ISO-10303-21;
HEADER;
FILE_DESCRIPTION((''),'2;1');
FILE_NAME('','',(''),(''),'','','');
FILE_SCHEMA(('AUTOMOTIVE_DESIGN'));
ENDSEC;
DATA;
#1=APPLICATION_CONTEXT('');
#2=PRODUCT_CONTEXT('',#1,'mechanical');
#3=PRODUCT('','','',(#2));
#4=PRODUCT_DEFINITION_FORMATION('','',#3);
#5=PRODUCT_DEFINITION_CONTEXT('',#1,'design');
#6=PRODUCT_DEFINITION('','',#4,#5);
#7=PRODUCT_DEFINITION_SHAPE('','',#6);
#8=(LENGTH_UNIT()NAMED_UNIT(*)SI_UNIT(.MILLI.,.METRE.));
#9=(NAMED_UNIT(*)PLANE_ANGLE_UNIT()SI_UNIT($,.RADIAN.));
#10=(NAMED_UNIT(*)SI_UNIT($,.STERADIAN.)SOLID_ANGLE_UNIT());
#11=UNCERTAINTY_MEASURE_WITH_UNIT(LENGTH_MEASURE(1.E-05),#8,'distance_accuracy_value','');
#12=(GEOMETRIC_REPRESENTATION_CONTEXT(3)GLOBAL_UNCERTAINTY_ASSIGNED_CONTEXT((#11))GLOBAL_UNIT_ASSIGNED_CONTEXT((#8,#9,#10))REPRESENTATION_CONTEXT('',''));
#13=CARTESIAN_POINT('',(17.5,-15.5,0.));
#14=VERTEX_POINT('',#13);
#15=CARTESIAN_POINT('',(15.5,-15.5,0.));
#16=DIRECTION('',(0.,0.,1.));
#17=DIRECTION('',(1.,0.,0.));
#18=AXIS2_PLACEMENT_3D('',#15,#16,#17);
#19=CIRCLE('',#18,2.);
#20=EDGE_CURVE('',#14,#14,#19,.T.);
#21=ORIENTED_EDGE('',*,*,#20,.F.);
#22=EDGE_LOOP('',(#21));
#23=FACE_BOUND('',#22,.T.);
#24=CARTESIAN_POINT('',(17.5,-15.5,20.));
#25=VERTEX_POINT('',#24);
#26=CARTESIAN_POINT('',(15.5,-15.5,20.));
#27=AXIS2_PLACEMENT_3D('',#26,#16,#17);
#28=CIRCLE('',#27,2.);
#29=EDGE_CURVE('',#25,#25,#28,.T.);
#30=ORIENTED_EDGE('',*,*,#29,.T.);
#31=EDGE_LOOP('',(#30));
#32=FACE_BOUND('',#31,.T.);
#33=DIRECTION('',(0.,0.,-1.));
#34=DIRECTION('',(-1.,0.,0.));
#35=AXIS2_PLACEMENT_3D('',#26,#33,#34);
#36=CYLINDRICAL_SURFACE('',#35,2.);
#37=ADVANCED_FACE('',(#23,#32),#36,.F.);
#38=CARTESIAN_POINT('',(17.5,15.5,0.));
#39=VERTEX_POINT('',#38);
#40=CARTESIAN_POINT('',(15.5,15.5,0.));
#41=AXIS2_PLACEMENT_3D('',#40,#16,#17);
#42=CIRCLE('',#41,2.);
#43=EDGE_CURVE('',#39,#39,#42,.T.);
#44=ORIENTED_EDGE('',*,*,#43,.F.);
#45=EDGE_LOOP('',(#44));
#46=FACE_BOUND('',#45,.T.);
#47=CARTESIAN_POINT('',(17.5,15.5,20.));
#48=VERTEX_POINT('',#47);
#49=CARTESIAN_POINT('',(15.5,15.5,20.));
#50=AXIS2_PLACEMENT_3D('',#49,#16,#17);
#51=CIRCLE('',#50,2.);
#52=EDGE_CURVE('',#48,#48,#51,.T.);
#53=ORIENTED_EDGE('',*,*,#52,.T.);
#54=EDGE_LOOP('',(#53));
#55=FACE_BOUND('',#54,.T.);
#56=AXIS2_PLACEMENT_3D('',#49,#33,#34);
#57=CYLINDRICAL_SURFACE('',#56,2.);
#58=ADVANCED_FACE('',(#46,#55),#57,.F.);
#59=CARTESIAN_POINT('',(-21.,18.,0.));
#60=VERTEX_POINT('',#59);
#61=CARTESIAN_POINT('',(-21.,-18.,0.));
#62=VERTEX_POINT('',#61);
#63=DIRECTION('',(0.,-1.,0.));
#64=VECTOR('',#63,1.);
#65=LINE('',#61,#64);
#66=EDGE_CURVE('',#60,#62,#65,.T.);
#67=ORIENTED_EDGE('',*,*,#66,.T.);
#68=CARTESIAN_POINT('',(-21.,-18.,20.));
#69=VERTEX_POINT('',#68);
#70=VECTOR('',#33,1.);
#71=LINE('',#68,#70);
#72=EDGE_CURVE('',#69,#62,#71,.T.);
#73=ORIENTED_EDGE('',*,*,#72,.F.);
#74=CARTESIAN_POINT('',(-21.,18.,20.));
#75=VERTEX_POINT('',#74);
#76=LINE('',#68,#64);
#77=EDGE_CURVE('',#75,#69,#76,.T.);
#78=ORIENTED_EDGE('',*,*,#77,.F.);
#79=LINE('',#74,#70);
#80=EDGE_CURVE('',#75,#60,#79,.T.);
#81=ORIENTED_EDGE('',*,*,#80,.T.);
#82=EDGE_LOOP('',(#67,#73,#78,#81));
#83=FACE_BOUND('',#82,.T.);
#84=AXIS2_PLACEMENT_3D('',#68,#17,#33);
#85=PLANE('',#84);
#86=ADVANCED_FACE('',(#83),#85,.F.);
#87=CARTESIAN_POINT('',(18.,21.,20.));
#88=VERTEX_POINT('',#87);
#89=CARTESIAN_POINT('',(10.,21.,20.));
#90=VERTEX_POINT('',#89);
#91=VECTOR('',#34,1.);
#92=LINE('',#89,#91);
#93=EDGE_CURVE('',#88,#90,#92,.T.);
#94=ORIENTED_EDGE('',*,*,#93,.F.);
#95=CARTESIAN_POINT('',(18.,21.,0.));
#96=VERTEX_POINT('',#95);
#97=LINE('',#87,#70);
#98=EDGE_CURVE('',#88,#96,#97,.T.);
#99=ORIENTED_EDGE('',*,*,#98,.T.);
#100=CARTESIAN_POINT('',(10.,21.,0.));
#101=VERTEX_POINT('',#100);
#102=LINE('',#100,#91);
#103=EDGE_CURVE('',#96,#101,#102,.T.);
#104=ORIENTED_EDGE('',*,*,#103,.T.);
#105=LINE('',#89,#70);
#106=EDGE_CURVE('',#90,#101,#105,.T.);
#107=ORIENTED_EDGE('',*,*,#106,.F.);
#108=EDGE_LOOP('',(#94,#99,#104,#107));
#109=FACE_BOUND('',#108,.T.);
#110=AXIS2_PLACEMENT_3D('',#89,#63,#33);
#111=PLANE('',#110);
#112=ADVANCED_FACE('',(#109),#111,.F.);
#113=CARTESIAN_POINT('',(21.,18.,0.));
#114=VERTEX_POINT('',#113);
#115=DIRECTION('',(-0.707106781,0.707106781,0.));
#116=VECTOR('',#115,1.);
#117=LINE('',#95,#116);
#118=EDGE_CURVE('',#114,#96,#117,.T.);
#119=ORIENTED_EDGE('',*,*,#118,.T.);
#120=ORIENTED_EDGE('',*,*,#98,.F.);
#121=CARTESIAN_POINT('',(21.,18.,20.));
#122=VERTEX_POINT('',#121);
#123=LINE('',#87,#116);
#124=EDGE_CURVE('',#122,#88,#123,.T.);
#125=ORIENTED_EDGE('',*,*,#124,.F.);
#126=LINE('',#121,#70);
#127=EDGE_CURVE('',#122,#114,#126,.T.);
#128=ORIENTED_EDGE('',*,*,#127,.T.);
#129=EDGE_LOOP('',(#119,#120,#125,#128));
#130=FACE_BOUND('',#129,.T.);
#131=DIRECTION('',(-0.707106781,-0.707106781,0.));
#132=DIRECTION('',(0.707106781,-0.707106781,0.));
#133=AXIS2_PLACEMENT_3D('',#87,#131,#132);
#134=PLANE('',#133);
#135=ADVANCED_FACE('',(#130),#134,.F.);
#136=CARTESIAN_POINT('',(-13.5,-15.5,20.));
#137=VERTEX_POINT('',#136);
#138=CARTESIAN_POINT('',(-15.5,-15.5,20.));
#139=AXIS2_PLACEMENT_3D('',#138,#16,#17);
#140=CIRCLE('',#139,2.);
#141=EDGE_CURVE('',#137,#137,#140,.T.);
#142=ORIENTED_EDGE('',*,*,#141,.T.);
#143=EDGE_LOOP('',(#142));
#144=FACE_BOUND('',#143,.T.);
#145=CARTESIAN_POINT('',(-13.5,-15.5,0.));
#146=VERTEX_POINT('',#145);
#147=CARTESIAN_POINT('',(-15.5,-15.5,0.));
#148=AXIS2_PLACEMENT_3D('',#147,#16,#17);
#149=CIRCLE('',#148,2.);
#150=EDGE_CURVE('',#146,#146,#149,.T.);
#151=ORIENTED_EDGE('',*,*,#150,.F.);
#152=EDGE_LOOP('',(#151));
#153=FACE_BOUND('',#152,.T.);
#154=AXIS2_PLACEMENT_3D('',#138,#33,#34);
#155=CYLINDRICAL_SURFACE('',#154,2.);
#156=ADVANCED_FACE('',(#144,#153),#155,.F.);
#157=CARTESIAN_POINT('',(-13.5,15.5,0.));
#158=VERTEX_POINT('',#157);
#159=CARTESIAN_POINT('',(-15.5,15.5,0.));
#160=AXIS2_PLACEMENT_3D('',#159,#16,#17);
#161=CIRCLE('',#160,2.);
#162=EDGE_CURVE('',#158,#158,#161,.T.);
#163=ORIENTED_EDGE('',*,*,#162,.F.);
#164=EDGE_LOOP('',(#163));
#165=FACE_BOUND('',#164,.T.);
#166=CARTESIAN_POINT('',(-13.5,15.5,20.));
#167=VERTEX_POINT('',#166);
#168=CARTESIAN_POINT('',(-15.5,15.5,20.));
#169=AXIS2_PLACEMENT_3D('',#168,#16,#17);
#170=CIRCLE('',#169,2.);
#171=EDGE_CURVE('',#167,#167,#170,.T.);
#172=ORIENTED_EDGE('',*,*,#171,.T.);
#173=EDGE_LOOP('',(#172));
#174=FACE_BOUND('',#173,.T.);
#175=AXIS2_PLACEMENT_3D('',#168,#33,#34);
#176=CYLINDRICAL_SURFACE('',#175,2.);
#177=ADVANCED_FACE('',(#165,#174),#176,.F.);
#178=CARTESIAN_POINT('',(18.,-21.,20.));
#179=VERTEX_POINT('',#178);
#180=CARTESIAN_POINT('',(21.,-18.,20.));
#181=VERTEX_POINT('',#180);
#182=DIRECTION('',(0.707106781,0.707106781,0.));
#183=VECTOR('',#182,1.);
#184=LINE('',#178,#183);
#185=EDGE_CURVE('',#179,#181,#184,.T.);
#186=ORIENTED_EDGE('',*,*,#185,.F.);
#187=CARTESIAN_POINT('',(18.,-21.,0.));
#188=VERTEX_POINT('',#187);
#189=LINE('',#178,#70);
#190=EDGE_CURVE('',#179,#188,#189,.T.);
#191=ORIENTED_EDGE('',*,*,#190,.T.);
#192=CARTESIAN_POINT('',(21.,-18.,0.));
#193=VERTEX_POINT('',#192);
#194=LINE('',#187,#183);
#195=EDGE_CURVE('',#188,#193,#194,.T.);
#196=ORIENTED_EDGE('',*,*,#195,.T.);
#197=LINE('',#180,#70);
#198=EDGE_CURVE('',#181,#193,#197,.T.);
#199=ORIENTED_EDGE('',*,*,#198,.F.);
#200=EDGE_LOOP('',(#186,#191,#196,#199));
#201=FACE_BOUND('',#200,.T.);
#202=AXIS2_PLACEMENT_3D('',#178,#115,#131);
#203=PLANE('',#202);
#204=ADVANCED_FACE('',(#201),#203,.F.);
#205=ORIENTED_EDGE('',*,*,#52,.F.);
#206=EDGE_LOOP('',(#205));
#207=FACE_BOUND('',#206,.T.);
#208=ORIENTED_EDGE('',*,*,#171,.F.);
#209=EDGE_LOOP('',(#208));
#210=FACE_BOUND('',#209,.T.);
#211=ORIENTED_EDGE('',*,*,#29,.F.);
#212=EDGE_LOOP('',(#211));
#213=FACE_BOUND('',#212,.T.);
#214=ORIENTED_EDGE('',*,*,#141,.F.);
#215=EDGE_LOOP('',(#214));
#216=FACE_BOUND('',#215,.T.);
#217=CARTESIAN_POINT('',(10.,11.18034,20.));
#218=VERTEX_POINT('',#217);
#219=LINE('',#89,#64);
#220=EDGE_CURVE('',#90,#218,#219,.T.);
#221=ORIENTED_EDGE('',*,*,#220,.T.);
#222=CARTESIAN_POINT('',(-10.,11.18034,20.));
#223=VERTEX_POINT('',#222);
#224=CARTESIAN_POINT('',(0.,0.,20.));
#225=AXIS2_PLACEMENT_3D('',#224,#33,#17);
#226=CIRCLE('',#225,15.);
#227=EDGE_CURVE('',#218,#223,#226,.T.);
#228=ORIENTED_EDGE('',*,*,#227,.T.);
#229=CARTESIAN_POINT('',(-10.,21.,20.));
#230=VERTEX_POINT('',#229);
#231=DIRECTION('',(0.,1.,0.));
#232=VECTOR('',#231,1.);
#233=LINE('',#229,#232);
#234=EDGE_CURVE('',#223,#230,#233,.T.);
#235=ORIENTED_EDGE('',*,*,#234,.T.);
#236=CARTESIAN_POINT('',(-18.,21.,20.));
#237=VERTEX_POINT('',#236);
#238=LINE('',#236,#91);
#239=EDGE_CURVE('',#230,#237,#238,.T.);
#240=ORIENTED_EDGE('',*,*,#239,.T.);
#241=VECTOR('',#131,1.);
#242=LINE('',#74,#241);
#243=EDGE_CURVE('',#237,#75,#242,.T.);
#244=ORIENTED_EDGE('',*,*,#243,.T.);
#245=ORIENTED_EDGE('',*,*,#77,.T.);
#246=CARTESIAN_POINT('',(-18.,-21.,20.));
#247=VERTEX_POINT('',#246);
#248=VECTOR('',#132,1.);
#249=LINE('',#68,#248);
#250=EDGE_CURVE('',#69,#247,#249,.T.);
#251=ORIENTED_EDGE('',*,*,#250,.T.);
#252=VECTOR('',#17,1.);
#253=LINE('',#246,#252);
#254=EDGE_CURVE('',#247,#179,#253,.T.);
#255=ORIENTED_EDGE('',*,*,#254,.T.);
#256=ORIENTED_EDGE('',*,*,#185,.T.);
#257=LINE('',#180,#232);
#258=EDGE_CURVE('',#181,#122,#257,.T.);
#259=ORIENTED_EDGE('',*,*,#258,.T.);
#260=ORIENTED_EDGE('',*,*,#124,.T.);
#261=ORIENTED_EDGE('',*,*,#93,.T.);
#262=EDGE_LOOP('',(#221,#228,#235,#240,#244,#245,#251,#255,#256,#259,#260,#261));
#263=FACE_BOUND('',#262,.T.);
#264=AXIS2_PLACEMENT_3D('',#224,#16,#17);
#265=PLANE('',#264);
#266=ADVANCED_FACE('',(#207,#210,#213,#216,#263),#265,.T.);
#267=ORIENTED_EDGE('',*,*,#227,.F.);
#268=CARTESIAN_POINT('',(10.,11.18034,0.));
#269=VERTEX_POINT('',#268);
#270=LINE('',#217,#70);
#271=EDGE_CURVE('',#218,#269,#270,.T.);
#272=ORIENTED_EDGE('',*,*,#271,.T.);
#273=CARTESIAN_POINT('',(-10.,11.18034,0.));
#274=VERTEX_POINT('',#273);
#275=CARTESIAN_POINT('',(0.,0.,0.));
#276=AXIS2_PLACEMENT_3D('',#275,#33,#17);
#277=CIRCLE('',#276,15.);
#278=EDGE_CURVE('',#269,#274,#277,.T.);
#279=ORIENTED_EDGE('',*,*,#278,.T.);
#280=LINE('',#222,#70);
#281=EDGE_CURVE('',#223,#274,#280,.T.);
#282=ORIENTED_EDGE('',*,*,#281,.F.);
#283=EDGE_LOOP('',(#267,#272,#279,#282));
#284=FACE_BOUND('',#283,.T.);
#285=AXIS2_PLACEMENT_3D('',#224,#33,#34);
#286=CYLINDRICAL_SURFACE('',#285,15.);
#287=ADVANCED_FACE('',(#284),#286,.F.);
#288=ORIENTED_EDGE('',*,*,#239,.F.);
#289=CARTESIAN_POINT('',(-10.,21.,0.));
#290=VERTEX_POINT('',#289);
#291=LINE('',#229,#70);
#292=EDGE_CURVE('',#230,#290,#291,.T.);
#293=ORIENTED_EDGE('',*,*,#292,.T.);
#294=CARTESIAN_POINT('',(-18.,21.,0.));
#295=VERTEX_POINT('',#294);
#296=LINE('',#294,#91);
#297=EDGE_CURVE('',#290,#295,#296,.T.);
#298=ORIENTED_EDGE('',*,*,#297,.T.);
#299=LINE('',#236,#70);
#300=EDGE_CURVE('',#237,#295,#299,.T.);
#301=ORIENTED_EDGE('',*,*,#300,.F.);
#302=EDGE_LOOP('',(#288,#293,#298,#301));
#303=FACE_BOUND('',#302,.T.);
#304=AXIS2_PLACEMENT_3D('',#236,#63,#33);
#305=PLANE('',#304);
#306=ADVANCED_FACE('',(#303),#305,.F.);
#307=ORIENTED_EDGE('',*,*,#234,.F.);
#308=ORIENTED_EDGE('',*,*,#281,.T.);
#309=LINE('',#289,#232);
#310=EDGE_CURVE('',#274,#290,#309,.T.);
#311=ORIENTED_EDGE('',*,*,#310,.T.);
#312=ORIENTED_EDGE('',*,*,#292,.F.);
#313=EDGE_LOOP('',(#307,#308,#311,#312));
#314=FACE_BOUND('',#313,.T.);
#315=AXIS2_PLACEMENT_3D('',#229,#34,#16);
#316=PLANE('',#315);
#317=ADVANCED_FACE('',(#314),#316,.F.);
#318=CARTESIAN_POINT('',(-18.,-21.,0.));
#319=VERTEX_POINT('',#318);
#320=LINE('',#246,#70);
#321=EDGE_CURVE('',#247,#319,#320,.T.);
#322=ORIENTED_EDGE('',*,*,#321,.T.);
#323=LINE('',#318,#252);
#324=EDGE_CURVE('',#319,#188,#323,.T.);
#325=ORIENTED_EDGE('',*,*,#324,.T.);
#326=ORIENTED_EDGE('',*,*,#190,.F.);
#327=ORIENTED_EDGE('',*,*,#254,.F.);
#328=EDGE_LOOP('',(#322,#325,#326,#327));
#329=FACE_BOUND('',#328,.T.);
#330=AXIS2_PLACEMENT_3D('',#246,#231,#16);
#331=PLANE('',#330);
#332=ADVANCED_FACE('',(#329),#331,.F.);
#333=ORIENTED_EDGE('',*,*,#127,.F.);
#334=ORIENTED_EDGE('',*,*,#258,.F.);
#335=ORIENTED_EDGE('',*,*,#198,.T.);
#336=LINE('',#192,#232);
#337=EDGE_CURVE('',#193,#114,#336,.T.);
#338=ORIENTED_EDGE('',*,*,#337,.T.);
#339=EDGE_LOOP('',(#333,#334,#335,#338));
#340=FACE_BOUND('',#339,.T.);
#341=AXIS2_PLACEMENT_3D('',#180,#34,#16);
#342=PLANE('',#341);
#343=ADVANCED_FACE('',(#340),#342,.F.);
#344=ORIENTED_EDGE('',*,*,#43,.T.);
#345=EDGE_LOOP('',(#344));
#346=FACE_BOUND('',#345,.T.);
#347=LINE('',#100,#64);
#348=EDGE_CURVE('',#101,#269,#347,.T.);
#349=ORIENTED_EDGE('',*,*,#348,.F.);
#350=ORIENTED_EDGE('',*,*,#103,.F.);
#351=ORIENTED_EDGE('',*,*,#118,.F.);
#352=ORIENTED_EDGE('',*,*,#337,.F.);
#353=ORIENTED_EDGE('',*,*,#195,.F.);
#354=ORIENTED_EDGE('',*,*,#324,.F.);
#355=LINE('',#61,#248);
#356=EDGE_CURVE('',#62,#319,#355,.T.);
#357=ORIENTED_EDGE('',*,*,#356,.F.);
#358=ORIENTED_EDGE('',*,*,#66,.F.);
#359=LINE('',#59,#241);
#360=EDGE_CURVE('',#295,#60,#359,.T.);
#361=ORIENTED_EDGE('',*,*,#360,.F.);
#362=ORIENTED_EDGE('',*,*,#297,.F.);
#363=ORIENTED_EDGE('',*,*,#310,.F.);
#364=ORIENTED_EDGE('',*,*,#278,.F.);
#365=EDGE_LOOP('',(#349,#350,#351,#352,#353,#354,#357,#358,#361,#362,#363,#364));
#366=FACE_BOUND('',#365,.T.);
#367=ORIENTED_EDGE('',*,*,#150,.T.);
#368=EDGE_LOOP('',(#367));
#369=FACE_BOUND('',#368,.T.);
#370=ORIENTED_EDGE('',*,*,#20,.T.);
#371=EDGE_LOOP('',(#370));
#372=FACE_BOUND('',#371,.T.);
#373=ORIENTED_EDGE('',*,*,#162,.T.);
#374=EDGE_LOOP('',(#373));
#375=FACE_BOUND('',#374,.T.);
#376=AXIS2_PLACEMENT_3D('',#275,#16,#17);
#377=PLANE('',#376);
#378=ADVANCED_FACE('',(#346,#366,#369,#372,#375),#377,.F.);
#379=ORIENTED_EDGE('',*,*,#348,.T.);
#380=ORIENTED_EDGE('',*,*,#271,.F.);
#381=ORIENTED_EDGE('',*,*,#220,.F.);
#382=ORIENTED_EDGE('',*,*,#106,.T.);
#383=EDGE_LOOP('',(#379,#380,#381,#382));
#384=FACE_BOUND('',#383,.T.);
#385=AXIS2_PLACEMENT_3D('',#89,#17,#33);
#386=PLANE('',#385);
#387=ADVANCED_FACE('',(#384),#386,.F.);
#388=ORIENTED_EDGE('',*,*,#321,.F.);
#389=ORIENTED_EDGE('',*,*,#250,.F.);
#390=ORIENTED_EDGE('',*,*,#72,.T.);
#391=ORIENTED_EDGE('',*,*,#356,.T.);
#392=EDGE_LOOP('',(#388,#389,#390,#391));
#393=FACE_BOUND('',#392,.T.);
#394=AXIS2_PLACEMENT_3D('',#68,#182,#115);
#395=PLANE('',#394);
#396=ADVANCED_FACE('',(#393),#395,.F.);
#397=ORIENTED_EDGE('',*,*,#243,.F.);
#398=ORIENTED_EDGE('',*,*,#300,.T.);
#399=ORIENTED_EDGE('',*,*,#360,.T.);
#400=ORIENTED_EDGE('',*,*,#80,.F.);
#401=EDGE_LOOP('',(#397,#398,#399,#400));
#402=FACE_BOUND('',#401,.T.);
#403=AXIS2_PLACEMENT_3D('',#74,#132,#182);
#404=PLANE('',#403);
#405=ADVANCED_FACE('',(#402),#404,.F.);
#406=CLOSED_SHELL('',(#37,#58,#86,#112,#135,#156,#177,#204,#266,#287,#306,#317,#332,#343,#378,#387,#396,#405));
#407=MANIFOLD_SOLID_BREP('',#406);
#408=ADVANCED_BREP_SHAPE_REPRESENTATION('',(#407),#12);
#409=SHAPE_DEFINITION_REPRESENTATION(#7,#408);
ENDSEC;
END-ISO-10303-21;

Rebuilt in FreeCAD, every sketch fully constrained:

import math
import FreeCAD as App
import Part
import Sketcher

V = App.Vector
Q = App.Units.Quantity

doc = App.newDocument("Part")
body = doc.addObject("PartDesign::Body", "Body")

# Sketch on XY plane
sketch1 = doc.addObject("Sketcher::SketchObject", "Sketch")
body.addObject(sketch1)
sketch1.AttachmentSupport = (doc.XY_Plane, [""])
sketch1.MapMode = "FlatFace"
sketch1.addGeometry(Part.LineSegment(V(-18, 21, 0), V(-21, 18, 0)), False)
sketch1.addGeometry(Part.LineSegment(V(-21, 18, 0), V(-21, -18, 0)), False)
sketch1.addGeometry(Part.LineSegment(V(-21, -18, 0), V(-18, -21, 0)), False)
sketch1.addGeometry(Part.LineSegment(V(-18, -21, 0), V(18, -21, 0)), False)
sketch1.addGeometry(Part.LineSegment(V(18, -21, 0), V(21, -18, 0)), False)
sketch1.addGeometry(Part.LineSegment(V(21, -18, 0), V(21, 18, 0)), False)
sketch1.addGeometry(Part.LineSegment(V(21, 18, 0), V(18, 21, 0)), False)
sketch1.addGeometry(Part.LineSegment(V(18, 21, 0), V(10, 21, 0)), False)
sketch1.addGeometry(Part.LineSegment(V(10, 21, 0), V(10, 11.2, 0)), False)
sketch1.addGeometry(Part.ArcOfCircle(Part.Circle(V(0, 0, 0), V(0, 0, 1), 15), math.radians(132), math.radians(408)), False)
sketch1.addGeometry(Part.LineSegment(V(-10, 11.2, 0), V(-10, 21, 0)), False)
sketch1.addGeometry(Part.LineSegment(V(-10, 21, 0), V(-18, 21, 0)), False)
sketch1.addGeometry(Part.Circle(V(15.5, -15.5, 0), V(0, 0, 1), 2), False)
sketch1.addGeometry(Part.Circle(V(-15.5, -15.5, 0), V(0, 0, 1), 2), False)
sketch1.addGeometry(Part.Circle(V(15.5, 15.5, 0), V(0, 0, 1), 2), False)
sketch1.addGeometry(Part.Circle(V(-15.5, 15.5, 0), V(0, 0, 1), 2), False)
sketch1.addConstraint(Sketcher.Constraint("Coincident", 0, 2, 1, 1))
sketch1.addConstraint(Sketcher.Constraint("Coincident", 1, 2, 2, 1))
sketch1.addConstraint(Sketcher.Constraint("Coincident", 2, 2, 3, 1))
sketch1.addConstraint(Sketcher.Constraint("Coincident", 3, 2, 4, 1))
sketch1.addConstraint(Sketcher.Constraint("Coincident", 4, 2, 5, 1))
sketch1.addConstraint(Sketcher.Constraint("Coincident", 5, 2, 6, 1))
sketch1.addConstraint(Sketcher.Constraint("Coincident", 6, 2, 7, 1))
sketch1.addConstraint(Sketcher.Constraint("Coincident", 7, 2, 8, 1))
sketch1.addConstraint(Sketcher.Constraint("Coincident", 8, 2, 9, 2))
sketch1.addConstraint(Sketcher.Constraint("Coincident", 9, 1, 10, 1))
sketch1.addConstraint(Sketcher.Constraint("Coincident", 10, 2, 11, 1))
sketch1.addConstraint(Sketcher.Constraint("Coincident", 11, 2, 0, 1))
sketch1.addConstraint(Sketcher.Constraint("Vertical", 1))
sketch1.addConstraint(Sketcher.Constraint("Horizontal", 3))
sketch1.addConstraint(Sketcher.Constraint("Vertical", 5))
sketch1.addConstraint(Sketcher.Constraint("Horizontal", 7))
sketch1.addConstraint(Sketcher.Constraint("Vertical", 8))
sketch1.addConstraint(Sketcher.Constraint("Vertical", 10))
sketch1.addConstraint(Sketcher.Constraint("Horizontal", 11))
sketch1.addConstraint(Sketcher.Constraint("Coincident", 9, 3, -1, 1))
sketch1.addConstraint(Sketcher.Constraint("Equal", 12, 13))
sketch1.addConstraint(Sketcher.Constraint("Equal", 13, 14))
sketch1.addConstraint(Sketcher.Constraint("Equal", 14, 15))
sketch1.addConstraint(Sketcher.Constraint("Symmetric", 13, 3, 14, 3, -1, 1))
sketch1.addConstraint(Sketcher.Constraint("Symmetric", 12, 3, 15, 3, -1, 1))
sketch1.addConstraint(Sketcher.Constraint("Symmetric", 0, 2, 4, 2, -1, 1))
sketch1.addConstraint(Sketcher.Constraint("Symmetric", 2, 2, 6, 2, -1, 1))
sketch1.addConstraint(Sketcher.Constraint("Symmetric", 3, 2, 11, 2, -1, 1))
sketch1.addConstraint(Sketcher.Constraint("Symmetric", 12, 3, 13, 3, -2))
sketch1.addConstraint(Sketcher.Constraint("Perpendicular", 0, 2))
sketch1.addConstraint(Sketcher.Constraint("Perpendicular", 4, 6))
sketch1.addConstraint(Sketcher.Constraint("Horizontal", 1, 2, 4, 2))
sketch1.addConstraint(Sketcher.Constraint("Horizontal", 8, 2, 9, 1))
sketch1.addConstraint(Sketcher.Constraint("Vertical", 3, 2, 6, 2))
sketch1.addConstraint(Sketcher.Constraint("Equal", 3, 1))
sketch1.addConstraint(Sketcher.Constraint("Diameter", 12, Q("4 mm")))
sketch1.addConstraint(Sketcher.Constraint("Radius", 9, Q("15 mm")))
sketch1.addConstraint(Sketcher.Constraint("DistanceX", 3, 1, 3, 2, Q("36 mm")))
sketch1.addConstraint(Sketcher.Constraint("DistanceX", 7, 2, 7, 1, Q("8 mm")))
sketch1.addConstraint(Sketcher.Constraint("DistanceX", 0, 2, -1, 1, Q("21 mm")))
sketch1.addConstraint(Sketcher.Constraint("DistanceX", 13, 3, 12, 3, Q("31 mm")))
sketch1.addConstraint(Sketcher.Constraint("DistanceY", 12, 3, 14, 3, Q("31 mm")))
pad1 = doc.addObject("PartDesign::Pad", "Pad")
body.addObject(pad1)
pad1.Profile = sketch1
pad1.Length = 20

doc.recompute()
